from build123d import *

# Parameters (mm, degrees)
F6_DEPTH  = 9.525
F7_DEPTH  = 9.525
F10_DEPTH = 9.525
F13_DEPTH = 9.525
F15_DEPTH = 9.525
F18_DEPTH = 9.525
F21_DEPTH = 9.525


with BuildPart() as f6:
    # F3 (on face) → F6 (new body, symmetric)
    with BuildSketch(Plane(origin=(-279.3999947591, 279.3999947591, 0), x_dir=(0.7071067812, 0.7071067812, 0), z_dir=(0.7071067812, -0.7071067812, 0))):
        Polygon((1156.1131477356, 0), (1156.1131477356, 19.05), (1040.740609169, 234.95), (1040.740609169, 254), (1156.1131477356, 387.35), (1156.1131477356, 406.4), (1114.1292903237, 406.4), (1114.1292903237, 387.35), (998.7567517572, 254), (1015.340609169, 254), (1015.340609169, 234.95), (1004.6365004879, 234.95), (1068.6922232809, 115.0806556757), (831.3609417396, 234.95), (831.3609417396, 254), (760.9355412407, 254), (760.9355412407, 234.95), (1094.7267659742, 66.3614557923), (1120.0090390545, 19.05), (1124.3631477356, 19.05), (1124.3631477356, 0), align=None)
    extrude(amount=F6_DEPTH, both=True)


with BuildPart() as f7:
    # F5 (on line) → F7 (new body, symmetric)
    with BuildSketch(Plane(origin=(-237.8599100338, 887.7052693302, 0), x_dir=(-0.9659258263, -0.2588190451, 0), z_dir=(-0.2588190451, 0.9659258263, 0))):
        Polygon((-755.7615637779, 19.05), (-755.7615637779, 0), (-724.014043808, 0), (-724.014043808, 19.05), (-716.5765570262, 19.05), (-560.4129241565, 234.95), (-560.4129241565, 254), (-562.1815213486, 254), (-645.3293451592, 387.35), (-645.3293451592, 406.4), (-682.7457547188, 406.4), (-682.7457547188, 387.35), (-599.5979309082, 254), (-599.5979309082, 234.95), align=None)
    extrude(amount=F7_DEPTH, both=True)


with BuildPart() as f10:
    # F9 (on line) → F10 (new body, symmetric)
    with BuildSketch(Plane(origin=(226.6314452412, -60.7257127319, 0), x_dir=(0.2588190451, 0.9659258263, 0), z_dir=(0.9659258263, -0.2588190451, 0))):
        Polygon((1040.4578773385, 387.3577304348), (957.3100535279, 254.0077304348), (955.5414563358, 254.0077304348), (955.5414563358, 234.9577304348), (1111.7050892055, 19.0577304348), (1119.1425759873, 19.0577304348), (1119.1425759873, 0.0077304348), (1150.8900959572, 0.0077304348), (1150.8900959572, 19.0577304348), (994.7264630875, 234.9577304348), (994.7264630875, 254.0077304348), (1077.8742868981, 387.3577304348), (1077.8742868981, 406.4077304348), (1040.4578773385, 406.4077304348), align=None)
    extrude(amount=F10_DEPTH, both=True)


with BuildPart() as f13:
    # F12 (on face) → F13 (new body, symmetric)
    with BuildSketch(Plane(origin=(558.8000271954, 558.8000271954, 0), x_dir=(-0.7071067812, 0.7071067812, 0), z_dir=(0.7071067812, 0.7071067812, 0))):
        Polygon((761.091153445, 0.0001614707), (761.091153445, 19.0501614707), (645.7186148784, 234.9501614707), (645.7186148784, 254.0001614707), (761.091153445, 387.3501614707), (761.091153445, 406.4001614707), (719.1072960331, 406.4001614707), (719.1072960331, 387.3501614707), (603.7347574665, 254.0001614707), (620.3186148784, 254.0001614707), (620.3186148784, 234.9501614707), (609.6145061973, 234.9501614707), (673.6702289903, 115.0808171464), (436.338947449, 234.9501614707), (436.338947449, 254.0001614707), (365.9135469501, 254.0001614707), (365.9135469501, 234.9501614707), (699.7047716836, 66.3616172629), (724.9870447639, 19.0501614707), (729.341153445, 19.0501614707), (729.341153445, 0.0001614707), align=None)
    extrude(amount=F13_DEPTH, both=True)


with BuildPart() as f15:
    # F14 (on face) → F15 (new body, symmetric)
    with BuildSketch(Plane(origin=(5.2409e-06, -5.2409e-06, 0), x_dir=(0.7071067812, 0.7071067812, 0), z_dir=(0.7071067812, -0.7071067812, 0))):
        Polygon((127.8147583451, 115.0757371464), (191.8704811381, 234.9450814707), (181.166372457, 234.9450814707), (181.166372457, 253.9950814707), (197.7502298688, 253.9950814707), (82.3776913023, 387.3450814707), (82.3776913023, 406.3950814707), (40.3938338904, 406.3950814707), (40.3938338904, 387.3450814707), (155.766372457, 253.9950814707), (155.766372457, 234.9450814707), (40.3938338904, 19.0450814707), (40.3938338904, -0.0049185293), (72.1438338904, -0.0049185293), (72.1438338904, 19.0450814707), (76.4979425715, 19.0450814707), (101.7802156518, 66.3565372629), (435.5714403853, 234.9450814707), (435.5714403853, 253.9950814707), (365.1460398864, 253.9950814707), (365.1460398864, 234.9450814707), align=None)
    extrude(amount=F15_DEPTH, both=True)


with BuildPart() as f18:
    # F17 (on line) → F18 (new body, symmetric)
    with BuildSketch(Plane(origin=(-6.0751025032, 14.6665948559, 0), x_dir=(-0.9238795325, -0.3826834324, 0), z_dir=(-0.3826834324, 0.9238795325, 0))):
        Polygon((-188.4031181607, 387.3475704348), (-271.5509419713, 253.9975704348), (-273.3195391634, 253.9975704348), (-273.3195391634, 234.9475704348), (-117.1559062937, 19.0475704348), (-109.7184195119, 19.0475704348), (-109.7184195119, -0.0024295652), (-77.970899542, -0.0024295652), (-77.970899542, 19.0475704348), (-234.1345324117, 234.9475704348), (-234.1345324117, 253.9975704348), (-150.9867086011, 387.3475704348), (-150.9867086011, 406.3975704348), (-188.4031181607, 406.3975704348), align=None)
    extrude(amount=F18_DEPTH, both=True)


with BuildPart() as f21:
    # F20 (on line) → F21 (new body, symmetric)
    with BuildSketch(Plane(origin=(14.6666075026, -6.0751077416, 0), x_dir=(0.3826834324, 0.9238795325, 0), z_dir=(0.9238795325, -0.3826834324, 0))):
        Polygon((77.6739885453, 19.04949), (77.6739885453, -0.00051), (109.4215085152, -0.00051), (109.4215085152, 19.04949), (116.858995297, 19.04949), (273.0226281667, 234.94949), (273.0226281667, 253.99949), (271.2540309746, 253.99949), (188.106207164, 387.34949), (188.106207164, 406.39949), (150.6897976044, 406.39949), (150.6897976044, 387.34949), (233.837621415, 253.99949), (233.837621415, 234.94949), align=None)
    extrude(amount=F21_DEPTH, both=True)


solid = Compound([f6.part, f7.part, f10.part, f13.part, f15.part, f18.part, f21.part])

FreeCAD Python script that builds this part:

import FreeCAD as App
import Part
import Sketcher

V = App.Vector
Q = App.Units.Quantity


def add_polygon(sketch, points):
    """Adds a closed chain of lines whose ends are joined by coincident constraints."""
    first, n = sketch.GeometryCount, len(points)
    for a, b in zip(points, points[1:] + points[:1]):
        sketch.addGeometry(Part.LineSegment(App.Vector(*a, 0), App.Vector(*b, 0)), False)
    for i in range(n):
        sketch.addConstraint(Sketcher.Constraint("Coincident", first + i, 2, first + (i + 1) % n, 1))

doc = App.newDocument("Part")
body = doc.addObject("PartDesign::Body", "Body")

# Sketch on an angled plane
sketch1 = body.newObject("Sketcher::SketchObject", "Sketch")
sketch1.Placement = App.Placement(V(-279.399995, 279.399995, 0), App.Rotation(V(0.707106781, 0.707106781, 0), V(0, 0, 0.999999999), V(0.707106781, -0.707106781, 0), "ZXY"))
add_polygon(sketch1, [(1156.113147, 0), (1156.113147, 19.05), (1040.740609, 234.95), (1040.740609, 254), (1156.113147, 387.35), (1156.113147, 406.4), (1114.12929, 406.4), (1114.12929, 387.35), (998.756751, 254), (1015.340609, 254), (1015.340609, 234.95), (1004.6365, 234.95), (1068.692223, 115.080656), (831.360941, 234.95), (831.360941, 254), (760.935541, 254), (760.935541, 234.95), (1094.726765, 66.361456), (1120.009038, 19.05), (1124.363147, 19.05), (1124.363147, 0)])  # lines 0-20
sketch1.addConstraint(Sketcher.Constraint("Vertical", 0))
sketch1.addConstraint(Sketcher.Constraint("Vertical", 2))
sketch1.addConstraint(Sketcher.Constraint("Vertical", 4))
sketch1.addConstraint(Sketcher.Constraint("Horizontal", 5))
sketch1.addConstraint(Sketcher.Constraint("Vertical", 6))
sketch1.addConstraint(Sketcher.Constraint("Horizontal", 8))
sketch1.addConstraint(Sketcher.Constraint("Vertical", 9))
sketch1.addConstraint(Sketcher.Constraint("Horizontal", 10))
sketch1.addConstraint(Sketcher.Constraint("Vertical", 13))
sketch1.addConstraint(Sketcher.Constraint("Horizontal", 14))
sketch1.addConstraint(Sketcher.Constraint("Vertical", 15))
sketch1.addConstraint(Sketcher.Constraint("Horizontal", 18))
sketch1.addConstraint(Sketcher.Constraint("Vertical", 19))
sketch1.addConstraint(Sketcher.Constraint("Horizontal", 20))
sketch1.addConstraint(Sketcher.Constraint("PointOnObject", 19, 2, -1))
sketch1.addConstraint(Sketcher.Constraint("Parallel", 3, 7))
sketch1.addConstraint(Sketcher.Constraint("Parallel", 1, 11))
sketch1.addConstraint(Sketcher.Constraint("Parallel", 12, 16))
sketch1.addConstraint(Sketcher.Constraint("Parallel", 11, 17))
sketch1.addConstraint(Sketcher.Constraint("Horizontal", 3, 2, 6, 2))
sketch1.addConstraint(Sketcher.Constraint("Horizontal", 2, 2, 7, 2))
sketch1.addConstraint(Sketcher.Constraint("Horizontal", 1, 2, 9, 2))
sketch1.addConstraint(Sketcher.Constraint("Horizontal", 10, 2, 12, 2))
sketch1.addConstraint(Sketcher.Constraint("Horizontal", 8, 2, 13, 2))
sketch1.addConstraint(Sketcher.Constraint("Horizontal", 12, 2, 15, 2))
sketch1.addConstraint(Sketcher.Constraint("Horizontal", 0, 2, 17, 2))
sketch1.addConstraint(Sketcher.Constraint("Vertical", 0, 2, 3, 2))
sketch1.addConstraint(Sketcher.Constraint("Equal", 0, 2))
sketch1.addConstraint(Sketcher.Constraint("Equal", 2, 4))
sketch1.addConstraint(Sketcher.Constraint("DistanceY", -1, 1, 2, 2, Q("10 in")))
sketch1.addConstraint(Sketcher.Constraint("DistanceY", -1, 1, 4, 2, Q("16 in")))
sketch1.addConstraint(Sketcher.Constraint("DistanceX", 8, 2, 2, 2, Q("1 in")))
sketch1.addConstraint(Sketcher.Constraint("DistanceX", 20, 1, 20, 2, Q("1.25 in")))
sketch1.addConstraint(Sketcher.Constraint("DistanceY", 0, 1, 0, 2, Q("0.75 in")))
sketch1.addConstraint(Sketcher.Constraint("DistanceX", 14, 2, 14, 1, 70.4254))
sketch1.addConstraint(Sketcher.Constraint("Distance", 3, 176.332201))
sketch1.addConstraint(Sketcher.Constraint("Distance", 16, 373.950102))
sketch1.addConstraint(Sketcher.Constraint("DistanceX", 10, 2, 10, 1, 10.704109))
sketch1.addConstraint(Sketcher.Constraint("DistanceX", 18, 1, 18, 2, 4.354109))
sketch1.addConstraint(Sketcher.Constraint("DistanceX", -1, 1, 10, 2, 1004.6365))
sketch1.addConstraint(Sketcher.Constraint("DistanceY", 16, 2, 11, 2, 48.7192))
sketch1.addConstraint(Sketcher.Constraint("DistanceX", 5, 2, 5, 1, 41.983857))
pad1 = body.newObject("PartDesign::Pad", "Pad")
pad1.Profile = sketch1
pad1.Length = Q("0.75 in")
pad1.Midplane = True
body2 = doc.addObject("PartDesign::Body", "Body001")

# Sketch on an angled plane
sketch2 = body2.newObject("Sketcher::SketchObject", "Sketch001")
sketch2.Placement = App.Placement(V(-237.85991, 887.705269, 0), App.Rotation(V(-0.965925826, -0.258819045, 0), V(0, 0, 0.999999999), V(-0.258819045, 0.965925826, 0), "ZXY"))
add_polygon(sketch2, [(-755.761563, 19.05), (-755.761563, 0), (-724.014043, 0), (-724.014043, 19.05), (-716.576557, 19.05), (-560.412924, 234.95), (-560.412924, 254), (-562.181521, 254), (-645.329345, 387.35), (-645.329345, 406.4), (-682.745754, 406.4), (-682.745754, 387.35), (-599.597931, 254), (-599.597931, 234.95)])  # lines 0-13
sketch2.addConstraint(Sketcher.Constraint("Vertical", 0))
sketch2.addConstraint(Sketcher.Constraint("Horizontal", 1))
sketch2.addConstraint(Sketcher.Constraint("Vertical", 2))
sketch2.addConstraint(Sketcher.Constraint("Horizontal", 3))
sketch2.addConstraint(Sketcher.Constraint("Vertical", 5))
sketch2.addConstraint(Sketcher.Constraint("Horizontal", 6))
sketch2.addConstraint(Sketcher.Constraint("Vertical", 8))
sketch2.addConstraint(Sketcher.Constraint("Horizontal", 9))
sketch2.addConstraint(Sketcher.Constraint("Vertical", 10))
sketch2.addConstraint(Sketcher.Constraint("Vertical", 12))
sketch2.addConstraint(Sketcher.Constraint("PointOnObject", 0, 2, -1))
sketch2.addConstraint(Sketcher.Constraint("Parallel", 7, 11))
sketch2.addConstraint(Sketcher.Constraint("Parallel", 4, 13))
sketch2.addConstraint(Sketcher.Constraint("Horizontal", 7, 2, 10, 2))
sketch2.addConstraint(Sketcher.Constraint("Horizontal", 6, 2, 11, 2))
sketch2.addConstraint(Sketcher.Constraint("Horizontal", 4, 2, 12, 2))
sketch2.addConstraint(Sketcher.Constraint("Horizontal", 3, 2, 13, 2))
sketch2.addConstraint(Sketcher.Constraint("Equal", 2, 5))
sketch2.addConstraint(Sketcher.Constraint("Equal", 5, 8))
sketch2.addConstraint(Sketcher.Constraint("DistanceY", -1, 1, 5, 2, Q("10 in")))
sketch2.addConstraint(Sketcher.Constraint("DistanceY", -1, 1, 8, 2, Q("16 in")))
sketch2.addConstraint(Sketcher.Constraint("DistanceY", 0, 2, 0, 1, Q("0.75 in")))
sketch2.addConstraint(Sketcher.Constraint("DistanceX", 1, 1, 1, 2, 31.74752))
sketch2.addConstraint(Sketcher.Constraint("DistanceX", 9, 2, 9, 1, 37.41641))
sketch2.addConstraint(Sketcher.Constraint("DistanceX", 2, 2, 7, 2, 78.684699))
sketch2.addConstraint(Sketcher.Constraint("Distance", 7, 157.14892))
sketch2.addConstraint(Sketcher.Constraint("DistanceX", 3, 1, 3, 2, 7.437487))
sketch2.addConstraint(Sketcher.Constraint("DistanceX", 6, 2, -1, 1, 562.181521))
pad2 = body2.newObject("PartDesign::Pad", "Pad001")
pad2.Profile = sketch2
pad2.Length = Q("0.75 in")
pad2.Midplane = True
body3 = doc.addObject("PartDesign::Body", "Body002")

# Sketch on an angled plane
sketch3 = body3.newObject("Sketcher::SketchObject", "Sketch002")
sketch3.Placement = App.Placement(V(226.631445, -60.725713, 0), App.Rotation(V(0.258819045, 0.965925826, 0), V(0, 0, 0.999999999), V(0.965925826, -0.258819045, 0), "ZXY"))
add_polygon(sketch3, [(1040.457877, 387.35773), (957.310053, 254.00773), (955.541456, 254.00773), (955.541456, 234.95773), (1111.705089, 19.05773), (1119.142575, 19.05773), (1119.142575, 0.00773), (1150.890095, 0.00773), (1150.890095, 19.05773), (994.726462, 234.95773), (994.726462, 254.00773), (1077.874286, 387.35773), (1077.874286, 406.40773), (1040.457877, 406.40773)])  # lines 0-13
sketch3.addConstraint(Sketcher.Constraint("Horizontal", 1))
sketch3.addConstraint(Sketcher.Constraint("Vertical", 2))
sketch3.addConstraint(Sketcher.Constraint("Horizontal", 4))
sketch3.addConstraint(Sketcher.Constraint("Vertical", 5))
sketch3.addConstraint(Sketcher.Constraint("Horizontal", 6))
sketch3.addConstraint(Sketcher.Constraint("Vertical", 7))
sketch3.addConstraint(Sketcher.Constraint("Vertical", 9))
sketch3.addConstraint(Sketcher.Constraint("Vertical", 11))
sketch3.addConstraint(Sketcher.Constraint("Horizontal", 12))
sketch3.addConstraint(Sketcher.Constraint("Vertical", 13))
sketch3.addConstraint(Sketcher.Constraint("Parallel", 3, 8))
sketch3.addConstraint(Sketcher.Constraint("Parallel", 0, 10))
sketch3.addConstraint(Sketcher.Constraint("Horizontal", 4, 2, 7, 2))
sketch3.addConstraint(Sketcher.Constraint("Horizontal", 2, 2, 8, 2))
sketch3.addConstraint(Sketcher.Constraint("Horizontal", 1, 2, 9, 2))
sketch3.addConstraint(Sketcher.Constraint("Horizontal", 10, 2, 13, 2))
sketch3.addConstraint(Sketcher.Constraint("Equal", 2, 5))
sketch3.addConstraint(Sketcher.Constraint("Equal", 9, 11))
sketch3.addConstraint(Sketcher.Constraint("DistanceY", 5, 2, 0, 2, Q("10 in")))
sketch3.addConstraint(Sketcher.Constraint("DistanceY", 8, 2, 10, 2, Q("6 in")))
sketch3.addConstraint(Sketcher.Constraint("DistanceY", 2, 2, 2, 1, Q("0.75 in")))
sketch3.addConstraint(Sketcher.Constraint("DistanceX", 6, 1, 6, 2, 31.74752))
sketch3.addConstraint(Sketcher.Constraint("DistanceX", 12, 2, 12, 1, 37.41641))
sketch3.addConstraint(Sketcher.Constraint("Distance", 0, 157.14892))
sketch3.addConstraint(Sketcher.Constraint("DistanceX", 1, 2, 1, 1, 1.768597))
sketch3.addConstraint(Sketcher.Constraint("DistanceY", -1, 1, 0, 2, 254.00773))
sketch3.addConstraint(Sketcher.Constraint("DistanceX", -1, 1, 3, 2, 1111.705089))
sketch3.addConstraint(Sketcher.Constraint("DistanceX", 2, 2, 4, 2, 163.60112))
pad3 = body3.newObject("PartDesign::Pad", "Pad002")
pad3.Profile = sketch3
pad3.Length = Q("0.75 in")
pad3.Midplane = True
body4 = doc.addObject("PartDesign::Body", "Body003")

# Sketch on an angled plane
sketch4 = body4.newObject("Sketcher::SketchObject", "Sketch003")
sketch4.Placement = App.Placement(V(558.800027, 558.800027, 0), App.Rotation(V(-0.707106781, 0.707106781, 0), V(0, 0, 0.999999999), V(0.707106781, 0.707106781, 0), "ZXY"))
add_polygon(sketch4, [(761.091153, 0.000161), (761.091153, 19.050161), (645.718615, 234.950161), (645.718615, 254.000161), (761.091153, 387.350161), (761.091153, 406.400161), (719.107296, 406.400161), (719.107296, 387.350161), (603.734757, 254.000161), (620.318615, 254.000161), (620.318615, 234.950161), (609.614506, 234.950161), (673.670229, 115.080817), (436.338947, 234.950161), (436.338947, 254.000161), (365.913547, 254.000161), (365.913547, 234.950161), (699.704771, 66.361617), (724.987044, 19.050161), (729.341153, 19.050161), (729.341153, 0.000161)])  # lines 0-20
sketch4.addConstraint(Sketcher.Constraint("Vertical", 0))
sketch4.addConstraint(Sketcher.Constraint("Vertical", 2))
sketch4.addConstraint(Sketcher.Constraint("Vertical", 4))
sketch4.addConstraint(Sketcher.Constraint("Horizontal", 5))
sketch4.addConstraint(Sketcher.Constraint("Vertical", 6))
sketch4.addConstraint(Sketcher.Constraint("Horizontal", 8))
sketch4.addConstraint(Sketcher.Constraint("Vertical", 9))
sketch4.addConstraint(Sketcher.Constraint("Horizontal", 10))
sketch4.addConstraint(Sketcher.Constraint("Vertical", 13))
sketch4.addConstraint(Sketcher.Constraint("Horizontal", 14))
sketch4.addConstraint(Sketcher.Constraint("Vertical", 15))
sketch4.addConstraint(Sketcher.Constraint("Horizontal", 18))
sketch4.addConstraint(Sketcher.Constraint("Vertical", 19))
sketch4.addConstraint(Sketcher.Constraint("Horizontal", 20))
sketch4.addConstraint(Sketcher.Constraint("Parallel", 3, 7))
sketch4.addConstraint(Sketcher.Constraint("Parallel", 1, 11))
sketch4.addConstraint(Sketcher.Constraint("Parallel", 12, 16))
sketch4.addConstraint(Sketcher.Constraint("Parallel", 11, 17))
sketch4.addConstraint(Sketcher.Constraint("Horizontal", 3, 2, 6, 2))
sketch4.addConstraint(Sketcher.Constraint("Horizontal", 2, 2, 7, 2))
sketch4.addConstraint(Sketcher.Constraint("Horizontal", 1, 2, 9, 2))
sketch4.addConstraint(Sketcher.Constraint("Horizontal", 10, 2, 12, 2))
sketch4.addConstraint(Sketcher.Constraint("Horizontal", 8, 2, 13, 2))
sketch4.addConstraint(Sketcher.Constraint("Horizontal", 12, 2, 15, 2))
sketch4.addConstraint(Sketcher.Constraint("Horizontal", 0, 2, 17, 2))
sketch4.addConstraint(Sketcher.Constraint("Vertical", 0, 2, 3, 2))
sketch4.addConstraint(Sketcher.Constraint("Equal", 0, 2))
sketch4.addConstraint(Sketcher.Constraint("Equal", 2, 4))
sketch4.addConstraint(Sketcher.Constraint("DistanceY", 1, 2, 3, 2, Q("6 in")))
sketch4.addConstraint(Sketcher.Constraint("DistanceX", 8, 2, 2, 2, Q("1 in")))
sketch4.addConstraint(Sketcher.Constraint("DistanceX", 20, 1, 20, 2, Q("1.25 in")))
sketch4.addConstraint(Sketcher.Constraint("DistanceY", 0, 1, 0, 2, Q("0.75 in")))
sketch4.addConstraint(Sketcher.Constraint("DistanceY", 0, 2, 1, 2, Q("8.5 in")))
sketch4.addConstraint(Sketcher.Constraint("DistanceX", 14, 2, 14, 1, 70.4254))
sketch4.addConstraint(Sketcher.Constraint("Distance", 3, 176.332201))
sketch4.addConstraint(Sketcher.Constraint("Distance", 16, 373.950102))
sketch4.addConstraint(Sketcher.Constraint("DistanceX", 10, 2, 10, 1, 10.704109))
sketch4.addConstraint(Sketcher.Constraint("DistanceX", 18, 1, 18, 2, 4.354109))
sketch4.addConstraint(Sketcher.Constraint("DistanceY", 16, 2, 11, 2, 48.7192))
sketch4.addConstraint(Sketcher.Constraint("DistanceX", 5, 2, 5, 1, 41.983857))
sketch4.addConstraint(Sketcher.Constraint("DistanceY", -1, 1, 0, 2, 19.050161))
sketch4.addConstraint(Sketcher.Constraint("DistanceX", -1, 1, 11, 2, 673.670229))
pad4 = body4.newObject("PartDesign::Pad", "Pad003")
pad4.Profile = sketch4
pad4.Length = Q("0.75 in")
pad4.Midplane = True
body5 = doc.addObject("PartDesign::Body", "Body004")

# Sketch on an angled plane
sketch5 = body5.newObject("Sketcher::SketchObject", "Sketch004")
sketch5.Placement = App.Placement(V(0.000005, -0.000005, 0), App.Rotation(V(0.707106781, 0.707106781, 0), V(0, 0, 0.999999999), V(0.707106781, -0.707106781, 0), "ZXY"))
add_polygon(sketch5, [(127.814758, 115.075737), (191.870481, 234.945081), (181.166372, 234.945081), (181.166372, 253.995081), (197.75023, 253.995081), (82.377691, 387.345081), (82.377691, 406.395081), (40.393834, 406.395081), (40.393834, 387.345081), (155.766372, 253.995081), (155.766372, 234.945081), (40.393834, 19.045081), (40.393834, -0.004919), (72.143834, -0.004919), (72.143834, 19.045081), (76.497943, 19.045081), (101.780216, 66.356537), (435.57144, 234.945081), (435.57144, 253.995081), (365.14604, 253.995081), (365.14604, 234.945081)])  # lines 0-20
sketch5.addConstraint(Sketcher.Constraint("Horizontal", 1))
sketch5.addConstraint(Sketcher.Constraint("Vertical", 2))
sketch5.addConstraint(Sketcher.Constraint("Horizontal", 3))
sketch5.addConstraint(Sketcher.Constraint("Vertical", 5))
sketch5.addConstraint(Sketcher.Constraint("Horizontal", 6))
sketch5.addConstraint(Sketcher.Constraint("Vertical", 7))
sketch5.addConstraint(Sketcher.Constraint("Vertical", 9))
sketch5.addConstraint(Sketcher.Constraint("Vertical", 11))
sketch5.addConstraint(Sketcher.Constraint("Horizontal", 12))
sketch5.addConstraint(Sketcher.Constraint("Vertical", 13))
sketch5.addConstraint(Sketcher.Constraint("Horizontal", 14))
sketch5.addConstraint(Sketcher.Constraint("Vertical", 17))
sketch5.addConstraint(Sketcher.Constraint("Horizontal", 18))
sketch5.addConstraint(Sketcher.Constraint("Vertical", 19))
sketch5.addConstraint(Sketcher.Constraint("Parallel", 4, 8))
sketch5.addConstraint(Sketcher.Constraint("Parallel", 0, 10))
sketch5.addConstraint(Sketcher.Constraint("Parallel", 10, 15))
sketch5.addConstraint(Sketcher.Constraint("Parallel", 16, 20))
sketch5.addConstraint(Sketcher.Constraint("Horizontal", 4, 2, 7, 2))
sketch5.addConstraint(Sketcher.Constraint("Horizontal", 3, 2, 8, 2))
sketch5.addConstraint(Sketcher.Constraint("Horizontal", 1, 2, 9, 2))
sketch5.addConstraint(Sketcher.Constraint("Horizontal", 10, 2, 13, 2))
sketch5.addConstraint(Sketcher.Constraint("Horizontal", 9, 2, 16, 2))
sketch5.addConstraint(Sketcher.Constraint("Horizontal", 8, 2, 17, 2))
sketch5.addConstraint(Sketcher.Constraint("Horizontal", 16, 2, 19, 2))
sketch5.addConstraint(Sketcher.Constraint("Vertical", 7, 2, 10, 2))
sketch5.addConstraint(Sketcher.Constraint("Equal", 2, 5))
sketch5.addConstraint(Sketcher.Constraint("Equal", 9, 11))
sketch5.addConstraint(Sketcher.Constraint("DistanceY", 1, 2, 4, 2, Q("6 in")))
sketch5.addConstraint(Sketcher.Constraint("DistanceX", 8, 2, 2, 2, Q("1 in")))
sketch5.addConstraint(Sketcher.Constraint("DistanceY", 11, 2, 8, 2, Q("10 in")))
sketch5.addConstraint(Sketcher.Constraint("DistanceX", 12, 1, 12, 2, Q("1.25 in")))
sketch5.addConstraint(Sketcher.Constraint("DistanceY", 2, 1, 2, 2, Q("0.75 in")))
sketch5.addConstraint(Sketcher.Constraint("DistanceX", 18, 2, 18, 1, 70.4254))
sketch5.addConstraint(Sketcher.Constraint("Distance", 4, 176.332201))
sketch5.addConstraint(Sketcher.Constraint("Distance", 16, 373.950102))
sketch5.addConstraint(Sketcher.Constraint("DistanceX", 1, 2, 1, 1, 10.704109))
sketch5.addConstraint(Sketcher.Constraint("DistanceX", 14, 1, 14, 2, 4.354109))
sketch5.addConstraint(Sketcher.Constraint("DistanceY", 15, 2, 20, 2, 48.7192))
sketch5.addConstraint(Sketcher.Constraint("DistanceX", 3, 1, 3, 2, 16.583857))
sketch5.addConstraint(Sketcher.Constraint("DistanceX", -1, 1, 0, 2, 191.870481))
sketch5.addConstraint(Sketcher.Constraint("DistanceY", -1, 1, 0, 2, 234.945081))
pad5 = body5.newObject("PartDesign::Pad", "Pad004")
pad5.Profile = sketch5
pad5.Length = Q("0.75 in")
pad5.Midplane = True
body6 = doc.addObject("PartDesign::Body", "Body005")

# Sketch on an angled plane
sketch6 = body6.newObject("Sketcher::SketchObject", "Sketch005")
sketch6.Placement = App.Placement(V(-6.075103, 14.666595, 0), App.Rotation(V(-0.923879532, -0.382683432, 0), V(0, 0, 0.999999999), V(-0.382683432, 0.923879532, 0), "ZXY"))
add_polygon(sketch6, [(-188.403118, 387.347569), (-271.550942, 253.99757), (-273.319539, 253.99757), (-273.319539, 234.94757), (-117.155906, 19.04757), (-109.718419, 19.04757), (-109.718419, -0.00243), (-77.970899, -0.00243), (-77.970899, 19.04757), (-234.134532, 234.94757), (-234.134532, 253.99757), (-150.986708, 387.347569), (-150.986708, 406.397569), (-188.403118, 406.397569)])  # lines 0-13
sketch6.addConstraint(Sketcher.Constraint("Horizontal", 1))
sketch6.addConstraint(Sketcher.Constraint("Vertical", 2))
sketch6.addConstraint(Sketcher.Constraint("Horizontal", 4))
sketch6.addConstraint(Sketcher.Constraint("Vertical", 5))
sketch6.addConstraint(Sketcher.Constraint("Horizontal", 6))
sketch6.addConstraint(Sketcher.Constraint("Vertical", 7))
sketch6.addConstraint(Sketcher.Constraint("Vertical", 9))
sketch6.addConstraint(Sketcher.Constraint("Vertical", 11))
sketch6.addConstraint(Sketcher.Constraint("Horizontal", 12))
sketch6.addConstraint(Sketcher.Constraint("Vertical", 13))
sketch6.addConstraint(Sketcher.Constraint("Parallel", 3, 8))
sketch6.addConstraint(Sketcher.Constraint("Parallel", 0, 10))
sketch6.addConstraint(Sketcher.Constraint("Horizontal", 4, 2, 7, 2))
sketch6.addConstraint(Sketcher.Constraint("Horizontal", 2, 2, 8, 2))
sketch6.addConstraint(Sketcher.Constraint("Horizontal", 1, 2, 9, 2))
sketch6.addConstraint(Sketcher.Constraint("Horizontal", 10, 2, 13, 2))
sketch6.addConstraint(Sketcher.Constraint("Equal", 2, 5))
sketch6.addConstraint(Sketcher.Constraint("Equal", 9, 11))
sketch6.addConstraint(Sketcher.Constraint("DistanceY", 5, 2, 0, 2, Q("10 in")))
sketch6.addConstraint(Sketcher.Constraint("DistanceY", 8, 2, 10, 2, Q("6 in")))
sketch6.addConstraint(Sketcher.Constraint("DistanceY", 2, 2, 2, 1, Q("0.75 in")))
sketch6.addConstraint(Sketcher.Constraint("DistanceX", 6, 1, 6, 2, 31.74752))
sketch6.addConstraint(Sketcher.Constraint("DistanceX", 12, 2, 12, 1, 37.41641))
sketch6.addConstraint(Sketcher.Constraint("DistanceX", 6, 2, -1, 1, 77.970899))
sketch6.addConstraint(Sketcher.Constraint("Distance", 0, 157.14892))
sketch6.addConstraint(Sketcher.Constraint("DistanceX", 1, 2, 1, 1, 1.768597))
sketch6.addConstraint(Sketcher.Constraint("DistanceX", 0, 2, -1, 1, 271.550942))
sketch6.addConstraint(Sketcher.Constraint("DistanceY", -1, 1, 0, 2, 253.99757))
pad6 = body6.newObject("PartDesign::Pad", "Pad005")
pad6.Profile = sketch6
pad6.Length = Q("0.75 in")
pad6.Midplane = True
body7 = doc.addObject("PartDesign::Body", "Body006")

# Sketch on an angled plane
sketch7 = body7.newObject("Sketcher::SketchObject", "Sketch006")
sketch7.Placement = App.Placement(V(14.666608, -6.075108, 0), App.Rotation(V(0.382683432, 0.923879532, 0), V(0, 0, 0.999999999), V(0.923879532, -0.382683432, 0), "ZXY"))
add_polygon(sketch7, [(77.673988, 19.04949), (77.673988, -0.00051), (109.421508, -0.00051), (109.421508, 19.04949), (116.858995, 19.04949), (273.022628, 234.949489), (273.022628, 253.999489), (271.254031, 253.999489), (188.106207, 387.349489), (188.106207, 406.399489), (150.689797, 406.399489), (150.689797, 387.349489), (233.837621, 253.999489), (233.837621, 234.949489)])  # lines 0-13
sketch7.addConstraint(Sketcher.Constraint("Vertical", 0))
sketch7.addConstraint(Sketcher.Constraint("Horizontal", 1))
sketch7.addConstraint(Sketcher.Constraint("Vertical", 2))
sketch7.addConstraint(Sketcher.Constraint("Horizontal", 3))
sketch7.addConstraint(Sketcher.Constraint("Vertical", 5))
sketch7.addConstraint(Sketcher.Constraint("Horizontal", 6))
sketch7.addConstraint(Sketcher.Constraint("Vertical", 8))
sketch7.addConstraint(Sketcher.Constraint("Horizontal", 9))
sketch7.addConstraint(Sketcher.Constraint("Vertical", 10))
sketch7.addConstraint(Sketcher.Constraint("Vertical", 12))
sketch7.addConstraint(Sketcher.Constraint("Parallel", 7, 11))
sketch7.addConstraint(Sketcher.Constraint("Parallel", 4, 13))
sketch7.addConstraint(Sketcher.Constraint("Horizontal", 7, 2, 10, 2))
sketch7.addConstraint(Sketcher.Constraint("Horizontal", 6, 2, 11, 2))
sketch7.addConstraint(Sketcher.Constraint("Horizontal", 4, 2, 12, 2))
sketch7.addConstraint(Sketcher.Constraint("Horizontal", 3, 2, 13, 2))
sketch7.addConstraint(Sketcher.Constraint("Equal", 2, 5))
sketch7.addConstraint(Sketcher.Constraint("Equal", 5, 8))
sketch7.addConstraint(Sketcher.Constraint("DistanceY", 1, 2, 5, 2, Q("10 in")))
sketch7.addConstraint(Sketcher.Constraint("DistanceY", 4, 2, 7, 2, Q("6 in")))
sketch7.addConstraint(Sketcher.Constraint("DistanceY", 0, 2, 0, 1, Q("0.75 in")))
sketch7.addConstraint(Sketcher.Constraint("DistanceX", 1, 1, 1, 2, 31.74752))
sketch7.addConstraint(Sketcher.Constraint("DistanceX", 9, 2, 9, 1, 37.41641))
sketch7.addConstraint(Sketcher.Constraint("DistanceX", 2, 2, 7, 2, 78.684699))
sketch7.addConstraint(Sketcher.Constraint("Distance", 7, 157.14892))
sketch7.addConstraint(Sketcher.Constraint("DistanceX", 3, 1, 3, 2, 7.437487))
sketch7.addConstraint(Sketcher.Constraint("DistanceX", -1, 1, 0, 2, 77.673988))
sketch7.addConstraint(Sketcher.Constraint("DistanceY", 0, 2, -1, 1, 0.00051))
pad7 = body7.newObject("PartDesign::Pad", "Pad006")
pad7.Profile = sketch7
pad7.Length = Q("0.75 in")
pad7.Midplane = True

doc.recompute()
